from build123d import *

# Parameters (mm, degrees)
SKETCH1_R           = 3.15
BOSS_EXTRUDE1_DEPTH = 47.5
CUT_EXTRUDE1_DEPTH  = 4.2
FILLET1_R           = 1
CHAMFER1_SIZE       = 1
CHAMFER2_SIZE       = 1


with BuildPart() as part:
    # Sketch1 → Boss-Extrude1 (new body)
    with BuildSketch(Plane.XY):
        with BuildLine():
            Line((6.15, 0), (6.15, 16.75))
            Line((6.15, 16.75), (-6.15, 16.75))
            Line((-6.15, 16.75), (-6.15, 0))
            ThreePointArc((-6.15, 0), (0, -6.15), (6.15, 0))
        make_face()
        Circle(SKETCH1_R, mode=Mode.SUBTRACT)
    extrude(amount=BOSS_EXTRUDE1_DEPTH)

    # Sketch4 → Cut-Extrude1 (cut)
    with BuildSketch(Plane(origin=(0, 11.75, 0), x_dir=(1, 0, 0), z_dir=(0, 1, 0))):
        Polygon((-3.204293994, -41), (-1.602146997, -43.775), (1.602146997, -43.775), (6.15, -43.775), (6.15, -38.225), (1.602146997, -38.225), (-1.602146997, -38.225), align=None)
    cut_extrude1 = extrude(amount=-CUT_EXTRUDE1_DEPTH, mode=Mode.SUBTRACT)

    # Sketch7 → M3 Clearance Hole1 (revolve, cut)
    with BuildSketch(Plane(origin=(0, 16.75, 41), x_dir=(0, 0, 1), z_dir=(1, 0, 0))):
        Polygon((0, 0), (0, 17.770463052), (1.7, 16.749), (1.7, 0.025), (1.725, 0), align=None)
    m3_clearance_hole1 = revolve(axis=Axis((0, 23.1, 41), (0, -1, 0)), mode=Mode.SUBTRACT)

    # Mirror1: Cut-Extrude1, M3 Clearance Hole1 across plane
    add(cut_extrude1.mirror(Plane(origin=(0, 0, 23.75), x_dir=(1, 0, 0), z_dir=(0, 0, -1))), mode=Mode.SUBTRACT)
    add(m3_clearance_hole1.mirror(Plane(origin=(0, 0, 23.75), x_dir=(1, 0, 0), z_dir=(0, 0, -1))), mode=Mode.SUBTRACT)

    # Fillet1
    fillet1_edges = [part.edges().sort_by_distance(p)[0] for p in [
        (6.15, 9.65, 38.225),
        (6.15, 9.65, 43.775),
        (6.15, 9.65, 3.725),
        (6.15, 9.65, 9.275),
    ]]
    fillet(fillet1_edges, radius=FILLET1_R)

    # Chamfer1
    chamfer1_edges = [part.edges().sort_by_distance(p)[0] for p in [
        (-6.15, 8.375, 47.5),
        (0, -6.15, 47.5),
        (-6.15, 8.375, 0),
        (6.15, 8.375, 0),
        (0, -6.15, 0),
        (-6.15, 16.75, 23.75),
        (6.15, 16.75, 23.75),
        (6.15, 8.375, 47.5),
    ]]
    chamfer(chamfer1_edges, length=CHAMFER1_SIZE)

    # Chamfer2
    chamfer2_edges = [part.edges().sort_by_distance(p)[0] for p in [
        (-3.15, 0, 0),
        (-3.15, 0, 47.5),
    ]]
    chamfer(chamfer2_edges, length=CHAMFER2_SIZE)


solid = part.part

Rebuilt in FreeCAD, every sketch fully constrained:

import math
import FreeCAD as App
import Part
import Sketcher
from FreeCAD import Vector
Q = App.Units.Quantity


def edges_at(feature, points):
    """Names of the edges that pass closest to the given points."""
    edges = feature.Shape.Edges
    near = lambda p: min(range(len(edges)), key=lambda i: edges[i].distToShape(Part.Vertex(*p))[0])
    return sorted({f"Edge{near(p) + 1}" for p in points})


def add_polygon(sketch, points):
    """Adds a closed chain of lines whose ends are joined by coincident constraints."""
    first, n = sketch.GeometryCount, len(points)
    for a, b in zip(points, points[1:] + points[:1]):
        sketch.addGeometry(Part.LineSegment(App.Vector(*a, 0), App.Vector(*b, 0)), False)
    for i in range(n):
        sketch.addConstraint(Sketcher.Constraint("Coincident", first + i, 2, first + (i + 1) % n, 1))

doc = App.newDocument("Part")
body = doc.addObject("PartDesign::Body", "Body")

sketch1 = body.newObject("Sketcher::SketchObject", "Sketch")
sketch1.AttachmentSupport = (doc.getObject("XY_Plane"), [""])
sketch1.MapMode = "FlatFace"
sketch1.addGeometry([
    Part.LineSegment(Vector(6.2, 0, 0), Vector(6.2, 16.8, 0)),
    Part.LineSegment(Vector(6.2, 16.8, 0), Vector(-6.2, 16.8, 0)),
    Part.LineSegment(Vector(-6.2, 16.8, 0), Vector(-6.2, 0, 0)),
    Part.ArcOfCircle(Part.Circle(Vector(0, 0, 0), Vector(0, 0, 1), 6.2), math.radians(180), math.radians(360)),
    Part.Circle(Vector(0, 0, 0), Vector(0, 0, 1), 3.1),
], False)
sketch1.addConstraint([
    Sketcher.Constraint("Coincident", 0, 2, 1, 1),
    Sketcher.Constraint("Coincident", 1, 2, 2, 1),
    Sketcher.Constraint("Tangent", 2, 2, 3, 1),
    Sketcher.Constraint("Tangent", 3, 2, 0, 1),
    Sketcher.Constraint("Vertical", 0),
    Sketcher.Constraint("Horizontal", 1),
    Sketcher.Constraint("Vertical", 2),
    Sketcher.Constraint("Coincident", 3, 3, -1, 1),
    Sketcher.Constraint("Coincident", 4, 3, -1, 1),
    Sketcher.Constraint("Diameter", 4, Q("6.3 mm")),
    Sketcher.Constraint("Radius", 3, Q("6.15 mm")),
    Sketcher.Constraint("DistanceY", 0, 1, 0, 2, Q("16.75 mm")),
])
pad1 = body.newObject("PartDesign::Pad", "Pad")
pad1.Profile = sketch1
pad1.Length = 47.5

sketch2 = body.newObject("Sketcher::SketchObject", "Sketch001")
sketch2.AttachmentSupport = (doc.getObject("XZ_Plane"), [""])
sketch2.MapMode = "FlatFace"
sketch2.AttachmentOffset = App.Placement(Vector(0, 0, -11.75), App.Rotation())
add_polygon(sketch2, [(-3.2, 41), (-1.6, 43.8), (6.2, 43.8), (6.2, 38.2), (-1.6, 38.2)])
sketch2.addConstraint([
    Sketcher.Constraint("Horizontal", 1),
    Sketcher.Constraint("Vertical", 2),
    Sketcher.Constraint("Horizontal", 3),
    Sketcher.Constraint("Vertical", 0, 2, 3, 2),
    Sketcher.Constraint("Equal", 0, 4),
    Sketcher.Constraint("Angle", 0, Q("60 deg")),
    Sketcher.Constraint("DistanceY", -1, 1, 4, 2, Q("41 mm")),
    Sketcher.Constraint("DistanceY", 2, 2, 2, 1, Q("5.55 mm")),
    Sketcher.Constraint("DistanceX", -1, 1, 1, 2, Q("6.15 mm")),
    Sketcher.Constraint("DistanceX", 1, 1, 1, 2, Q("7.752147 mm")),
])
pocket1 = body.newObject("PartDesign::Pocket", "Pocket")
pocket1.Profile = sketch2
pocket1.Length = 4.2
pocket1.Reversed = True

sketch3 = body.newObject("Sketcher::SketchObject", "Sketch002")
sketch3.AttachmentSupport = (doc.getObject("YZ_Plane"), [""])
sketch3.MapMode = "FlatFace"
add_polygon(sketch3, [(-1.02, 41), (16.75, 41), (16.75, 42.725), (16.725, 42.7), (0.001, 42.7)])
sketch3.addGeometry(Part.LineSegment(Vector(16.75, 41, 0), Vector(-1.02, 41, 0)), True)
sketch3.addConstraint([
    Sketcher.Constraint("Horizontal", 0),
    Sketcher.Constraint("Vertical", 1),
    Sketcher.Constraint("Horizontal", 3),
    Sketcher.Constraint("Horizontal", 5),
    Sketcher.Constraint("Coincident", 5, 1, 0, 2),
    Sketcher.Constraint("Equal", 0, 5),
    Sketcher.Constraint("Angle", 2, Q("-135 deg")),
    Sketcher.Constraint("Angle", 4, Q("-121 deg")),
    Sketcher.Constraint("DistanceY", -1, 1, 0, 2, Q("41 mm")),
    Sketcher.Constraint("DistanceY", -1, 1, 2, 2, Q("42.7 mm")),
    Sketcher.Constraint("DistanceX", 3, 2, 3, 1, Q("16.724 mm")),
    Sketcher.Constraint("DistanceY", 1, 1, 1, 2, Q("1.725 mm")),
    Sketcher.Constraint("DistanceX", -1, 1, 0, 2, Q("16.75 mm")),
])
groove = body.newObject("PartDesign::Groove", "Groove")
groove.Profile = sketch3
groove.ReferenceAxis = (sketch3, ["Axis0"])
groove.Angle = 360
doc.recompute()

datumplane = body.newObject("PartDesign::Plane", "DatumPlane")
datumplane.AttachmentSupport = (doc.getObject("XY_Plane"), [""])
datumplane.MapMode = "FlatFace"
datumplane.AttachmentOffset = App.Placement(Vector(0, 0, 23.75), App.Rotation())
mirrored = body.newObject("PartDesign::Mirrored", "Mirrored")
mirrored.Originals = [pocket1, groove]
mirrored.MirrorPlane = (datumplane, [""])
body.Tip = mirrored
doc.recompute()

fillet = body.newObject("PartDesign::Fillet", "Fillet")
fillet.Base = (mirrored, edges_at(mirrored, [
    (6.15, 9.65, 38.225),
    (6.15, 9.65, 43.775),
    (6.15, 9.65, 3.725),
    (6.15, 9.65, 9.275),
]))
fillet.Radius = 1
doc.recompute()

chamfer = body.newObject("PartDesign::Chamfer", "Chamfer")
chamfer.Base = (fillet, edges_at(fillet, [
    (-6.15, 8.375, 47.5),
    (0, -6.15, 47.5),
    (-6.15, 8.375, 0),
    (6.15, 8.375, 0),
    (0, -6.15, 0),
    (-6.15, 16.75, 23.75),
    (6.15, 16.75, 23.75),
    (6.15, 8.375, 47.5),
]))
chamfer.Size = 1
doc.recompute()

chamfer2 = body.newObject("PartDesign::Chamfer", "Chamfer001")
chamfer2.Base = (chamfer, edges_at(chamfer, [(-3.15, 0, 0), (-3.15, 0, 47.5)]))
chamfer2.Size = 1

doc.recompute()
